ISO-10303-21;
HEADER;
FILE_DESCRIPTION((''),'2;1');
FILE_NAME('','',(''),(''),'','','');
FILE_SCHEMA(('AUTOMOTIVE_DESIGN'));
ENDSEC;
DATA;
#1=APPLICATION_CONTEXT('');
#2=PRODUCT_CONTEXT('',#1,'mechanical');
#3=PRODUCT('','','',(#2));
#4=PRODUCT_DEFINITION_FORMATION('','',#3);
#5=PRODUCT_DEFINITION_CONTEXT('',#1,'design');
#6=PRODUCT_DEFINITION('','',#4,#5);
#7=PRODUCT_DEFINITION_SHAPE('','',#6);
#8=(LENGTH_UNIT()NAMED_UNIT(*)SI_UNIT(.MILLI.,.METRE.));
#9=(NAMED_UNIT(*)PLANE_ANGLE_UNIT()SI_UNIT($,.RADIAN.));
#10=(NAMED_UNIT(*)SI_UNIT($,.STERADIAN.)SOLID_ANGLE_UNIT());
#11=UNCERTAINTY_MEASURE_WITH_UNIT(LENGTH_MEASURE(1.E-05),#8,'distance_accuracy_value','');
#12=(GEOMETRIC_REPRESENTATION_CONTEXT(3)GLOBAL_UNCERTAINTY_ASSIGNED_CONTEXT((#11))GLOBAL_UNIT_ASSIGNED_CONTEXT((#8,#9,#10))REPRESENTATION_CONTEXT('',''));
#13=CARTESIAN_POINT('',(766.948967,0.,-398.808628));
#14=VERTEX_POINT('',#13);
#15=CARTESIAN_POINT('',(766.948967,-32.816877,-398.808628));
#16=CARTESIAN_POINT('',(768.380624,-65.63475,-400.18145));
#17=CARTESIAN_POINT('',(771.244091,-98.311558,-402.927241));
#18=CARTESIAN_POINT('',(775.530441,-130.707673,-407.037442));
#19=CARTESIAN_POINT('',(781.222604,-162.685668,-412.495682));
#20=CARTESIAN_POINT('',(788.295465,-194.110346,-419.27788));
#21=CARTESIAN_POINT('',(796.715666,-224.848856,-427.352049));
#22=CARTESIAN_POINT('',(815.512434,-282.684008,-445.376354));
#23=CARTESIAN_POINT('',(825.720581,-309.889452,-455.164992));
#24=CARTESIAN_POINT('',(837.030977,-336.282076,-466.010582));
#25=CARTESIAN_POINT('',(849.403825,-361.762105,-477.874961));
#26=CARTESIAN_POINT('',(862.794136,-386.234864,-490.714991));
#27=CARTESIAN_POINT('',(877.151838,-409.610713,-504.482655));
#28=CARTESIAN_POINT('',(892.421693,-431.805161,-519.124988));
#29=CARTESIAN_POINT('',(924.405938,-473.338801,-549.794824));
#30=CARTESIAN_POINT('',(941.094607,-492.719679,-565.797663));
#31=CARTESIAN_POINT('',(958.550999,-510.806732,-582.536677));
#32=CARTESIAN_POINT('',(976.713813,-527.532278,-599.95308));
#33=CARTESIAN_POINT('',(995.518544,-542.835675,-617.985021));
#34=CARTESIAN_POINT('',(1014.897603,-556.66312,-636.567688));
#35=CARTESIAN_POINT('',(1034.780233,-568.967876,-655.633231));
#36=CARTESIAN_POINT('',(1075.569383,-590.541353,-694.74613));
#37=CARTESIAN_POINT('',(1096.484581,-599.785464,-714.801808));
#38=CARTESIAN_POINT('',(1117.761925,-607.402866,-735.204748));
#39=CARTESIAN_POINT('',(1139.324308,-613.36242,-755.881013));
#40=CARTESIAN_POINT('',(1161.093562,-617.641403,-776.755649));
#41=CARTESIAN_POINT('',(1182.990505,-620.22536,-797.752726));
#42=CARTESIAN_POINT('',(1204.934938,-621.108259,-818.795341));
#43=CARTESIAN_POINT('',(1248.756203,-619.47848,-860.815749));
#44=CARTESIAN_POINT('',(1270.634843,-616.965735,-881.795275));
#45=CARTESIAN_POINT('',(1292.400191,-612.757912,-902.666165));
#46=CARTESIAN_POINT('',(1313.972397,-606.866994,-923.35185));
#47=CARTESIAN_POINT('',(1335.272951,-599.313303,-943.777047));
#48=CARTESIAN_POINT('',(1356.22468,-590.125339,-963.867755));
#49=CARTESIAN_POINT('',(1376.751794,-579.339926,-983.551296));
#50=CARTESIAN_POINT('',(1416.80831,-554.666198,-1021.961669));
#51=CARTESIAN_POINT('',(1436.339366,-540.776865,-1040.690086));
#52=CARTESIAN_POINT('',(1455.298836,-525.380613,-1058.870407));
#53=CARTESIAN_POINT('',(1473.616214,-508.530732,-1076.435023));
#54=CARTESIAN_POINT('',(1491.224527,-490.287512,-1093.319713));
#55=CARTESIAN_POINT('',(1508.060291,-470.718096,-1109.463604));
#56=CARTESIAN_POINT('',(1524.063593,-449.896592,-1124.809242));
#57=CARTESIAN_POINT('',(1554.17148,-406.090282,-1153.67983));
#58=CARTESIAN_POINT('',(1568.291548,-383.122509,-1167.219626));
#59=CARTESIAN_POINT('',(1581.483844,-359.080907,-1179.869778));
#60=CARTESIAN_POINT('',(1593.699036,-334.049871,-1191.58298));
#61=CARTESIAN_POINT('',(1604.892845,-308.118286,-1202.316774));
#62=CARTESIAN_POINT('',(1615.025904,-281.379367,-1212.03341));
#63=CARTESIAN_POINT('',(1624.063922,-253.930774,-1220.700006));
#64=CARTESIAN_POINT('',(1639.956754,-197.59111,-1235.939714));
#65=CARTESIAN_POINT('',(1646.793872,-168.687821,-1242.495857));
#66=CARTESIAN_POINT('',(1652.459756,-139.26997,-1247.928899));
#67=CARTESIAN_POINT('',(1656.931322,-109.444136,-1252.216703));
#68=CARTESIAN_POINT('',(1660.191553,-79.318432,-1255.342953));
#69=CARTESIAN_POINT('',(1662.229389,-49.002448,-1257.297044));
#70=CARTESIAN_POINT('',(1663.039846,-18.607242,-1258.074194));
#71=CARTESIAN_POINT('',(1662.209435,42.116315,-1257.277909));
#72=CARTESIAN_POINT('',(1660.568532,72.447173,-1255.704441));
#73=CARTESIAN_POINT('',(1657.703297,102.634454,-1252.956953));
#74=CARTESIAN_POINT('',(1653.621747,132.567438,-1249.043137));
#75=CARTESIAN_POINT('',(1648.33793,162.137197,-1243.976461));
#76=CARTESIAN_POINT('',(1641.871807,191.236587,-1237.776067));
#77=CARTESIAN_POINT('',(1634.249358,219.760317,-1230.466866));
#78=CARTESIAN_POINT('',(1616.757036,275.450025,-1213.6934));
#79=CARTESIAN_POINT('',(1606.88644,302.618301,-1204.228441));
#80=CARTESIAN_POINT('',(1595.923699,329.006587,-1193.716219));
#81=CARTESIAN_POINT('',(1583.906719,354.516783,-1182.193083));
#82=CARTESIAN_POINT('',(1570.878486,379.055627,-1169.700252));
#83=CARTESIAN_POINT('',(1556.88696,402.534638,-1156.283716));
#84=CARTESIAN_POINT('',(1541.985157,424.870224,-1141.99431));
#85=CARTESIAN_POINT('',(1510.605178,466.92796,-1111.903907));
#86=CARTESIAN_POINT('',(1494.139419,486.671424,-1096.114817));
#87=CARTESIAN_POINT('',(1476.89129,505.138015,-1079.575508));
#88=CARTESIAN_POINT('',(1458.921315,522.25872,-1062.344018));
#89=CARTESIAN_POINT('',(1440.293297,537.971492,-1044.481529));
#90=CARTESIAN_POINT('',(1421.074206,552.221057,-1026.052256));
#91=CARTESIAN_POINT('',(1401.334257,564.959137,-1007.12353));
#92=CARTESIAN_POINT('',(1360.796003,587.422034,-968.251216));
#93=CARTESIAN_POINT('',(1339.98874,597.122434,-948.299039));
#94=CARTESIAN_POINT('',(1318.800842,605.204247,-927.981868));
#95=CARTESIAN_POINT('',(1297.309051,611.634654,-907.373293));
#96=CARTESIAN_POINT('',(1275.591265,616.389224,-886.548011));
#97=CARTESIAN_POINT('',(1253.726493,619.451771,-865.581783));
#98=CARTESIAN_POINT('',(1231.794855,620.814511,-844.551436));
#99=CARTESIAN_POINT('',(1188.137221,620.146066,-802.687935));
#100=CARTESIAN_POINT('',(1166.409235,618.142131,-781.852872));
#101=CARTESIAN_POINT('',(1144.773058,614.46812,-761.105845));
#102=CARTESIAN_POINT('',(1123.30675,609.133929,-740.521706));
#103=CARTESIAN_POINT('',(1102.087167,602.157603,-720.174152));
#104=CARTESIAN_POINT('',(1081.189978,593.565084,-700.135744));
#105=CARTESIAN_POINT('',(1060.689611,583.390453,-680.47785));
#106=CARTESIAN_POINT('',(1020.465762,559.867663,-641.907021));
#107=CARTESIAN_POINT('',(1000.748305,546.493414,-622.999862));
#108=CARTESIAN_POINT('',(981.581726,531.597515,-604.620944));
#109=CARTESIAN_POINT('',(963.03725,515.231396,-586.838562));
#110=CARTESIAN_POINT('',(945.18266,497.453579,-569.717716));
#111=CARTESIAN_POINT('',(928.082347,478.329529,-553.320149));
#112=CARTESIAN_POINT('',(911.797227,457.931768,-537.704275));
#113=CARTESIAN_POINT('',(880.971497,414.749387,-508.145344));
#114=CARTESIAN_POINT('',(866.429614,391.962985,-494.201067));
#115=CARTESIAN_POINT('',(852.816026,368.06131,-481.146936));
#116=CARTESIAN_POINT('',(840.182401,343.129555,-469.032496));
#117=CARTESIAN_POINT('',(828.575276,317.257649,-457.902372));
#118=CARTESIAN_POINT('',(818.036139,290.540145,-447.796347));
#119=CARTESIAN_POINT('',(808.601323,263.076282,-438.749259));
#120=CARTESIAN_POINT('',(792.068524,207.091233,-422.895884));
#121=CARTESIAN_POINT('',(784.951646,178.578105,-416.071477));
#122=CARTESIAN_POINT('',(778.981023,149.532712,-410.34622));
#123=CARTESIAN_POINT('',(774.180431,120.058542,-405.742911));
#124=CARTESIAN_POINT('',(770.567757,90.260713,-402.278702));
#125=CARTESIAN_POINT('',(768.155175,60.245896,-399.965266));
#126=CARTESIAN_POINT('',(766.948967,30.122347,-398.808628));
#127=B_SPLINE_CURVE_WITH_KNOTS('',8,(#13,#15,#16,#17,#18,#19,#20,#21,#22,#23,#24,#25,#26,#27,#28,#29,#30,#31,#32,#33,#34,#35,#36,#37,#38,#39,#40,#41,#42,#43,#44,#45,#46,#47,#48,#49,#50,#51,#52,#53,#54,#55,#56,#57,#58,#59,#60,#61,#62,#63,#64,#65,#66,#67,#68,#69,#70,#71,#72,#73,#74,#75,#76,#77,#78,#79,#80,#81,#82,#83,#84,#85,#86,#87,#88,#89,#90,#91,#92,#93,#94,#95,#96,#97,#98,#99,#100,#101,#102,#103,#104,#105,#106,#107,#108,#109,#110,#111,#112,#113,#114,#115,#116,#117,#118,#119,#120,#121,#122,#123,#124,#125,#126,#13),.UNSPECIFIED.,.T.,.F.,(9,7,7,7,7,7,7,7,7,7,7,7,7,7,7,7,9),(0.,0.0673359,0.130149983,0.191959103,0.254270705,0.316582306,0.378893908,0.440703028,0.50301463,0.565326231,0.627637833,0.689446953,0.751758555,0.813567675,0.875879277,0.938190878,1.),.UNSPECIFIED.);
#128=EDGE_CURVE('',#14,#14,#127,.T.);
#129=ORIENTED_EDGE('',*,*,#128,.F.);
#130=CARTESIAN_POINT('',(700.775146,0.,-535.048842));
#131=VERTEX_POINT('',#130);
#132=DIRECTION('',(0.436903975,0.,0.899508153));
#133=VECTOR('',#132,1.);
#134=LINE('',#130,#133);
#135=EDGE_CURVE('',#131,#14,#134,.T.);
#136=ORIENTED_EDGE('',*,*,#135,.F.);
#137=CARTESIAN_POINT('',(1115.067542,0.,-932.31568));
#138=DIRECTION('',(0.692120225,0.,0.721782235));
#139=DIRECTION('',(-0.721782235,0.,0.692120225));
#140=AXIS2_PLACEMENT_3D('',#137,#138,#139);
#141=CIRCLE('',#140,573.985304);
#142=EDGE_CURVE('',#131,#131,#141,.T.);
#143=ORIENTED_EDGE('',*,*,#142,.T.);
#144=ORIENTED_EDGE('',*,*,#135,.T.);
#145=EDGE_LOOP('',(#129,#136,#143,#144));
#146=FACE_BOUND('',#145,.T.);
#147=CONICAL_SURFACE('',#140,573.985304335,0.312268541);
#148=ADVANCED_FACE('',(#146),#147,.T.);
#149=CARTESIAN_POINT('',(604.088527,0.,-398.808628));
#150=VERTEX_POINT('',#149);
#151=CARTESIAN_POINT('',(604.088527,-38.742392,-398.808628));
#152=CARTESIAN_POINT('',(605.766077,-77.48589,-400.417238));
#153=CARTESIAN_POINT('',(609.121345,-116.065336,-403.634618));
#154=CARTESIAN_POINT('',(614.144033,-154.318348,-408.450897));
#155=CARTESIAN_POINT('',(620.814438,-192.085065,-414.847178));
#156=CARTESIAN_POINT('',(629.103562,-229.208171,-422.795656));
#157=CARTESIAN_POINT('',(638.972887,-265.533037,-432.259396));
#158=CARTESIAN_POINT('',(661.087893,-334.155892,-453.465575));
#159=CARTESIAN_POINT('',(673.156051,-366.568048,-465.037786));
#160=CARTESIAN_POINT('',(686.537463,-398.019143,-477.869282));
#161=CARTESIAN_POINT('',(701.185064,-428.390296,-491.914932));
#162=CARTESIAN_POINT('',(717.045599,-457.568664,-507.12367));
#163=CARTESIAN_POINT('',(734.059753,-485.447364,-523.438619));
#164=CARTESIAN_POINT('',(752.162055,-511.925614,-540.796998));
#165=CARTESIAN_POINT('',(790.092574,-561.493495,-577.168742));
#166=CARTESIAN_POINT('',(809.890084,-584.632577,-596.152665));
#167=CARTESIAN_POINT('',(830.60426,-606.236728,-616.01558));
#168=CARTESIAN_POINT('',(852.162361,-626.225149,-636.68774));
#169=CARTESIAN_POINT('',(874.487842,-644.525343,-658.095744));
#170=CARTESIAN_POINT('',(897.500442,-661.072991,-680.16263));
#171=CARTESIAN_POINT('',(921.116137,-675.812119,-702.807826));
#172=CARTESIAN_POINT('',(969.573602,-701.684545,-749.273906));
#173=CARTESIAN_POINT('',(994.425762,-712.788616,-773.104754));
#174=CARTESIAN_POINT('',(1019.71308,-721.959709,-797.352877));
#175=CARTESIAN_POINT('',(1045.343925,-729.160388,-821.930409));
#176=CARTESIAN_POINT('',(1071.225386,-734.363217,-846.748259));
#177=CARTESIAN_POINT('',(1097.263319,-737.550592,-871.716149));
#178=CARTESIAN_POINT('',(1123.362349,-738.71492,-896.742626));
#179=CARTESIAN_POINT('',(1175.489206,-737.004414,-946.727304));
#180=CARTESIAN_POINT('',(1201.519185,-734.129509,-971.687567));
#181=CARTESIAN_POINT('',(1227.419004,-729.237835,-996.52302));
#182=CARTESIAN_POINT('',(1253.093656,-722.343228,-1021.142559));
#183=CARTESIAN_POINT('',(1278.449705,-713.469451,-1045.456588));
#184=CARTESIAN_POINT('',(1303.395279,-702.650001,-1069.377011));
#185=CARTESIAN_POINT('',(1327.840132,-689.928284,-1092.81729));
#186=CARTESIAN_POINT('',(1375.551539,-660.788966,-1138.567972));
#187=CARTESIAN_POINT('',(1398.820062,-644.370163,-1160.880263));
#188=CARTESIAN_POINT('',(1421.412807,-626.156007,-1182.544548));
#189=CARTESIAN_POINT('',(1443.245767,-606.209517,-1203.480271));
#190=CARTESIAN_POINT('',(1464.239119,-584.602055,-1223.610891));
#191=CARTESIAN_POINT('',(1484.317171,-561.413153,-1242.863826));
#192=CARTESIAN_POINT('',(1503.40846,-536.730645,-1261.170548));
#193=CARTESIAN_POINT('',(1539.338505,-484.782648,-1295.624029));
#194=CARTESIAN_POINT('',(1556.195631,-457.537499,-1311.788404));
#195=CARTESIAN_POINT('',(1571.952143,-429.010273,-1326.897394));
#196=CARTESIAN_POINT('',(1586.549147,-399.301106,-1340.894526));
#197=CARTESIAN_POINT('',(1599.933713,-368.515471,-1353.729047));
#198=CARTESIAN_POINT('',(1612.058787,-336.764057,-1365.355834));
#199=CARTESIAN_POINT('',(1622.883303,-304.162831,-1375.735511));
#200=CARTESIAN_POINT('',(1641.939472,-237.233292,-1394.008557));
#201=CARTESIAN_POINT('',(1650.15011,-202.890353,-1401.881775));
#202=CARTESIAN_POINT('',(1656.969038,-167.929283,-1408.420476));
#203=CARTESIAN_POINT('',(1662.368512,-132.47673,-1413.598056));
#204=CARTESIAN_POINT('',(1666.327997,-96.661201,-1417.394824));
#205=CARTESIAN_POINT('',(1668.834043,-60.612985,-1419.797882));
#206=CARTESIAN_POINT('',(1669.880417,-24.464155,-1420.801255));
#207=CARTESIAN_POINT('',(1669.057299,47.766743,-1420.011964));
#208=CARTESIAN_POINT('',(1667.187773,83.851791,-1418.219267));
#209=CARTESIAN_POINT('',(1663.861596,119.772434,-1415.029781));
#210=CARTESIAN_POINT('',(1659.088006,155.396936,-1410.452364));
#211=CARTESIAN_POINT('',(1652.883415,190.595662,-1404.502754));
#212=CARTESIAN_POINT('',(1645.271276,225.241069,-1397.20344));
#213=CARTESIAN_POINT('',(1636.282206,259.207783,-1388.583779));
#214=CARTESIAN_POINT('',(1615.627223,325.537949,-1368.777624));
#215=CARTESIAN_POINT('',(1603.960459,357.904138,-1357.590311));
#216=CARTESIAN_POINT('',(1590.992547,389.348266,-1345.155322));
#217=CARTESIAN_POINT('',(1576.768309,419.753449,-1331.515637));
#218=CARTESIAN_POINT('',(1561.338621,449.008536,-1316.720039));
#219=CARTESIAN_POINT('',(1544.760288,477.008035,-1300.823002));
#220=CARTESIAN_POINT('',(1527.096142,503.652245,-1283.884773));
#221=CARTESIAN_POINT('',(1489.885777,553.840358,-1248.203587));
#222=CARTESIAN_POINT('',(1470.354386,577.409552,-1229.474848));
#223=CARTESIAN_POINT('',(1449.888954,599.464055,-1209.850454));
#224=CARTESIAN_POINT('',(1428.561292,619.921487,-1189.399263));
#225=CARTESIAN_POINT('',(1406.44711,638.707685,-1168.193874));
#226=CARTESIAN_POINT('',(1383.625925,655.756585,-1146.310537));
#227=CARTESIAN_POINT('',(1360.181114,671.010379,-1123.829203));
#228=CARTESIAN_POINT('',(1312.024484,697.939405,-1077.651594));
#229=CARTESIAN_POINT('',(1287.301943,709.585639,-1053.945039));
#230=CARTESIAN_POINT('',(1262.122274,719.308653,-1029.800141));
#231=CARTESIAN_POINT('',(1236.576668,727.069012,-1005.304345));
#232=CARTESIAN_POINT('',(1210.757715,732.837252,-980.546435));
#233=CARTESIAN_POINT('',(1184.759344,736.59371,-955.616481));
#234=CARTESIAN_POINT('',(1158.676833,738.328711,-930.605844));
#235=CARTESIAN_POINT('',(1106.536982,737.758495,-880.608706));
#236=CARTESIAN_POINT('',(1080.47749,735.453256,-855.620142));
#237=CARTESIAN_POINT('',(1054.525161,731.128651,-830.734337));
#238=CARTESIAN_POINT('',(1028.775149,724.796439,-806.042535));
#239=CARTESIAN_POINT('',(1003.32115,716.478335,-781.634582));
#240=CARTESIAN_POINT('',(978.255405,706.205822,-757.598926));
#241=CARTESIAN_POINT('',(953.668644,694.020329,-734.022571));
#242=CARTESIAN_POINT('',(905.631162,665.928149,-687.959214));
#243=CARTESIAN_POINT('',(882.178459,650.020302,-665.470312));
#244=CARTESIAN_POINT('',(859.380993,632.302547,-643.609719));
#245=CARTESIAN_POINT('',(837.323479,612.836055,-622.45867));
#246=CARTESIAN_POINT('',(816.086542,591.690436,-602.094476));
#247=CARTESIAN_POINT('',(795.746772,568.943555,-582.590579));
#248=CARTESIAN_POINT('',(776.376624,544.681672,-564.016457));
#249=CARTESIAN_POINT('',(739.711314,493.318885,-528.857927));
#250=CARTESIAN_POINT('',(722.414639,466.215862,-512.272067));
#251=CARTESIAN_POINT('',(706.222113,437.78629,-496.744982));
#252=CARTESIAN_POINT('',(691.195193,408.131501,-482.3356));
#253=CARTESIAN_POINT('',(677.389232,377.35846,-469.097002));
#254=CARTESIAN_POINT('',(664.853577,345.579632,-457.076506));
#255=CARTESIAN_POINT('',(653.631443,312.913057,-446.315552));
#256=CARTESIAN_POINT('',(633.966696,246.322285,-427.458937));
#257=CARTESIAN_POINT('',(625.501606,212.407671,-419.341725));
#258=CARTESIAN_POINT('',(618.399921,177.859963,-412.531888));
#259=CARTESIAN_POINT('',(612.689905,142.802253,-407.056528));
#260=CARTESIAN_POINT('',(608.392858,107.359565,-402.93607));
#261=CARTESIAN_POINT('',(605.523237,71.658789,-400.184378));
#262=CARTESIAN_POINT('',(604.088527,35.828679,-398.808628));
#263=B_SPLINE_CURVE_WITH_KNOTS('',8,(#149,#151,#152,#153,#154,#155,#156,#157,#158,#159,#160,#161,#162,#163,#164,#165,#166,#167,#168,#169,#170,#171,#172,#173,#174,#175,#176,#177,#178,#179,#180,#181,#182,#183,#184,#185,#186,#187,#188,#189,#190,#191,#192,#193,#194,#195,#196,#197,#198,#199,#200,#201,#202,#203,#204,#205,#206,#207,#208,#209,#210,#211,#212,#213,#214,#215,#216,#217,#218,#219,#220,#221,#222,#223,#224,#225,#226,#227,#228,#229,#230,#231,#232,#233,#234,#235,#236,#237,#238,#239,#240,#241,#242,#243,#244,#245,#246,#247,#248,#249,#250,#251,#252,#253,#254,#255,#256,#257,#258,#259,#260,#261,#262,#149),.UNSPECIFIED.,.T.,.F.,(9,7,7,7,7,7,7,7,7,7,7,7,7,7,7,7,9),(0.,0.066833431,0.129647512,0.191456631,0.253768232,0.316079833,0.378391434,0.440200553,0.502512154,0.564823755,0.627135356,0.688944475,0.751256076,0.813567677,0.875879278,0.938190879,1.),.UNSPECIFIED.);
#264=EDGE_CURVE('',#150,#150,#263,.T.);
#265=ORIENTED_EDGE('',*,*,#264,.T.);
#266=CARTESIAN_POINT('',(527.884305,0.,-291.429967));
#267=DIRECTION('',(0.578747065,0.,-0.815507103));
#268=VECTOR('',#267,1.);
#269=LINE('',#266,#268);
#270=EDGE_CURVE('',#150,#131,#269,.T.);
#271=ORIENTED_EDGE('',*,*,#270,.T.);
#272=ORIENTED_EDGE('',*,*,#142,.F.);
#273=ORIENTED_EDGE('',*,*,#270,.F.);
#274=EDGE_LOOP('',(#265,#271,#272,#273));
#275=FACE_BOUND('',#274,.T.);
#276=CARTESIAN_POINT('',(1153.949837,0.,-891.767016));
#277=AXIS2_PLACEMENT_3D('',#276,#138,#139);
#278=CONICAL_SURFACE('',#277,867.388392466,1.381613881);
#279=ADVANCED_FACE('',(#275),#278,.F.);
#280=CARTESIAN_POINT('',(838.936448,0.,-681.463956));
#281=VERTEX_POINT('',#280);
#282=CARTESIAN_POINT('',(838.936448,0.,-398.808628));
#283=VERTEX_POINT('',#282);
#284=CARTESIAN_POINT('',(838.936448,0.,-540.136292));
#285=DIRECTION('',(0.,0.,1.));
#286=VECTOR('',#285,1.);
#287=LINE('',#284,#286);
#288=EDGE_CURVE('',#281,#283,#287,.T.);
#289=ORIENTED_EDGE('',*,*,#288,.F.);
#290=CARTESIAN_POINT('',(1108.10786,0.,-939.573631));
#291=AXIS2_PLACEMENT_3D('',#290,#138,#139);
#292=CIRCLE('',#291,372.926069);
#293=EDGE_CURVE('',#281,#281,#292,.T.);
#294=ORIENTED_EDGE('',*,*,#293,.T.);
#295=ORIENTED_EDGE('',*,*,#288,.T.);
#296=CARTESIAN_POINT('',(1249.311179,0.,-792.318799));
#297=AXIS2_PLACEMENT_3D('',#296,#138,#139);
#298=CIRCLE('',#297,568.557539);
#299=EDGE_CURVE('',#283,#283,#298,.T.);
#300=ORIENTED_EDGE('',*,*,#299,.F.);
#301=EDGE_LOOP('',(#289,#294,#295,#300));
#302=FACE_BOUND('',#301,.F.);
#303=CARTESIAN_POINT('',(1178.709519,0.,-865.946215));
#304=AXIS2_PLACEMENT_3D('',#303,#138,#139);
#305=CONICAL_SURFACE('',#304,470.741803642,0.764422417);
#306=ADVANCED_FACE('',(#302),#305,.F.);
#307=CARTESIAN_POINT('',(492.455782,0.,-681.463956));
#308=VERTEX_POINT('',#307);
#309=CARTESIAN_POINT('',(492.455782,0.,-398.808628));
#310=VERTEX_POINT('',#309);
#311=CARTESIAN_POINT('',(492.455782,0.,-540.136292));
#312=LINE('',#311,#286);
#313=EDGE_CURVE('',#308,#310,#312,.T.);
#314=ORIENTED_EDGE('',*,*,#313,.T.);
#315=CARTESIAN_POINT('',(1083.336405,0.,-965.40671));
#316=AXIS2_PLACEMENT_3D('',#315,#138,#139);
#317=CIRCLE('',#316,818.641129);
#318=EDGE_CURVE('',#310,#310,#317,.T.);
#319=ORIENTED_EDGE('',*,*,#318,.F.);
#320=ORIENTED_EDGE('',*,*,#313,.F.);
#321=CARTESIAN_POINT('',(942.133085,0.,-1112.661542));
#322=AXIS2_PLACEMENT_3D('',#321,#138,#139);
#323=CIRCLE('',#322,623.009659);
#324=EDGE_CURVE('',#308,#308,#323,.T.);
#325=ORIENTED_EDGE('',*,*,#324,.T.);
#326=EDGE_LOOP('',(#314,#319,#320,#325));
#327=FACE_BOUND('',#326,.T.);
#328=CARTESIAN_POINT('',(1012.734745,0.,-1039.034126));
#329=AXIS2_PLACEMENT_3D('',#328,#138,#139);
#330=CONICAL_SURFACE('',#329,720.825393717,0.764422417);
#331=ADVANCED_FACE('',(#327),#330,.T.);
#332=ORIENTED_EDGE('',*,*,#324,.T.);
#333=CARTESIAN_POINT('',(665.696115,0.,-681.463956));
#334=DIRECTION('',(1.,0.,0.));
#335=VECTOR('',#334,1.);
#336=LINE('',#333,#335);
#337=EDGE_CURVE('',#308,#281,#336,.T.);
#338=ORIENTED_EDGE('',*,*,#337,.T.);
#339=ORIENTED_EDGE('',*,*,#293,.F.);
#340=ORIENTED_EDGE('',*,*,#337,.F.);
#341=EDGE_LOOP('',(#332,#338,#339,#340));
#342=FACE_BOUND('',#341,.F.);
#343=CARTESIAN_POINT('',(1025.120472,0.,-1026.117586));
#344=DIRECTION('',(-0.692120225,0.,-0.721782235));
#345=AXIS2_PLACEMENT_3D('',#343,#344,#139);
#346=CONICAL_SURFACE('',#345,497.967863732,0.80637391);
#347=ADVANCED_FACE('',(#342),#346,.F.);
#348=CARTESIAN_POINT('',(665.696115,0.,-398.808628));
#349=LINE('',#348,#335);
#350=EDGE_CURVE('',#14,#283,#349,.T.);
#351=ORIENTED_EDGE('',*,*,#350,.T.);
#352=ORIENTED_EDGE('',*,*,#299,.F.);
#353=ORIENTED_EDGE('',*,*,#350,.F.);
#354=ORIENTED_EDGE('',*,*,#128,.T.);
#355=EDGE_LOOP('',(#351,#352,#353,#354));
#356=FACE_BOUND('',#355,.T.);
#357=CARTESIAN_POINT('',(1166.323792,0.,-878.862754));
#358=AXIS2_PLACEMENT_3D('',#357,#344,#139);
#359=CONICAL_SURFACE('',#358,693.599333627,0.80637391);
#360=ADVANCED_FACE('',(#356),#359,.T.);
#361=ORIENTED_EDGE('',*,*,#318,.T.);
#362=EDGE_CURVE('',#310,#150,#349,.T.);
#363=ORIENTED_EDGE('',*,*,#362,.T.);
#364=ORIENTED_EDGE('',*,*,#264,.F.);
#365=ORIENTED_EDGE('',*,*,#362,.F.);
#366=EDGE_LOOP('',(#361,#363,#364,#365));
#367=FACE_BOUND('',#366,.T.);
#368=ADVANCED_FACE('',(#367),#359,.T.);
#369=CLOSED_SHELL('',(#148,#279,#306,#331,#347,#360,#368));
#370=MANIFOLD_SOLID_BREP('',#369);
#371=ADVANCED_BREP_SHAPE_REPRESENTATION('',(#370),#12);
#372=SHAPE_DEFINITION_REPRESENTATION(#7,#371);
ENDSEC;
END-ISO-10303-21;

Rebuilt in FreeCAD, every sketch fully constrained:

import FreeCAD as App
import Part
import Sketcher
from FreeCAD import Vector
Q = App.Units.Quantity


def add_polygon(sketch, points):
    """Adds a closed chain of lines whose ends are joined by coincident constraints."""
    first, n = sketch.GeometryCount, len(points)
    for a, b in zip(points, points[1:] + points[:1]):
        sketch.addGeometry(Part.LineSegment(App.Vector(*a, 0), App.Vector(*b, 0)), False)
    for i in range(n):
        sketch.addConstraint(Sketcher.Constraint("Coincident", first + i, 2, first + (i + 1) % n, 1))

doc = App.newDocument("Part")
body = doc.addObject("PartDesign::Body", "Body")

# Sketch on XZ plane
sketch1 = doc.addObject("Sketcher::SketchObject", "Sketch")
body.addObject(sketch1)
sketch1.AttachmentSupport = (doc.XZ_Plane, [""])
sketch1.MapMode = "FlatFace"
add_polygon(sketch1, [(492.455782, -398.808628), (492.455782, -681.463956), (838.936448, -681.463956), (838.936448, -398.808628)])  # lines 0-3
sketch1.addGeometry(Part.LineSegment(Vector(942.133085, -1112.661542, 0), Vector(1249.311179, -792.318799, 0)), True)  # axis
sketch1.addConstraint([
    Sketcher.Constraint("Vertical", 0),
    Sketcher.Constraint("Horizontal", 1),
    Sketcher.Constraint("Vertical", 2),
    Sketcher.Constraint("Horizontal", 3),
    Sketcher.Constraint("DistanceY", 0, 2, 0, 1, Q("282.655329 mm")),
    Sketcher.Constraint("DistanceY", 4, 2, -1, 1, Q("792.318799 mm")),
    Sketcher.Constraint("DistanceX", 1, 1, 1, 2, Q("346.480667 mm")),
    Sketcher.Constraint("DistanceX", -1, 1, 0, 2, Q("492.455782 mm")),
    Sketcher.Constraint("DistanceY", 4, 1, -1, 1, Q("1112.661542 mm")),
    Sketcher.Constraint("DistanceX", -1, 1, 4, 2, Q("1249.311179 mm")),
    Sketcher.Constraint("DistanceY", 4, 2, 2, 2, Q("393.510171 mm")),
    Sketcher.Constraint("Distance", 4, Q("443.821872 mm")),
])
revolution = doc.addObject("PartDesign::Revolution", "Revolution")
body.addObject(revolution)
revolution.Profile = sketch1
revolution.ReferenceAxis = (sketch1, ["Axis0"])
revolution.Angle = 360

# Sketch on XZ plane
sketch2 = doc.addObject("Sketcher::SketchObject", "Sketch001")
body.addObject(sketch2)
sketch2.AttachmentSupport = (doc.XZ_Plane, [""])
sketch2.MapMode = "FlatFace"
add_polygon(sketch2, [(834.37258, -259.995311), (527.884305, -291.429967), (700.775146, -535.048842)])  # lines 0-2
sketch2.addGeometry(Part.LineSegment(Vector(1115.067542, -932.31568, 0), Vector(1316.470539, -722.281208, 0)), True)  # axis
sketch2.addConstraint([
    Sketcher.Constraint("Distance", 0, Q("308.096089 mm")),
    Sketcher.Constraint("Distance", 1, Q("298.73299 mm")),
    Sketcher.Constraint("Distance", 3, Q("290.994239 mm")),
    Sketcher.Constraint("DistanceY", 1, 2, -1, 1, Q("535.048842 mm")),
    Sketcher.Constraint("DistanceX", -1, 1, 2, 2, Q("834.37258 mm")),
    Sketcher.Constraint("DistanceY", 2, 2, -1, 1, Q("259.995311 mm")),
    Sketcher.Constraint("DistanceX", -1, 1, 3, 1, Q("1115.067542 mm")),
    Sketcher.Constraint("DistanceY", 3, 1, -1, 1, Q("932.31568 mm")),
    Sketcher.Constraint("DistanceX", -1, 1, 3, 2, Q("1316.470539 mm")),
    Sketcher.Constraint("DistanceX", 0, 2, 1, 2, Q("172.890841 mm")),
])
groove = doc.addObject("PartDesign::Groove", "Groove")
body.addObject(groove)
groove.Profile = sketch2
groove.ReferenceAxis = (sketch2, ["Axis0"])
groove.Angle = 360

doc.recompute()
